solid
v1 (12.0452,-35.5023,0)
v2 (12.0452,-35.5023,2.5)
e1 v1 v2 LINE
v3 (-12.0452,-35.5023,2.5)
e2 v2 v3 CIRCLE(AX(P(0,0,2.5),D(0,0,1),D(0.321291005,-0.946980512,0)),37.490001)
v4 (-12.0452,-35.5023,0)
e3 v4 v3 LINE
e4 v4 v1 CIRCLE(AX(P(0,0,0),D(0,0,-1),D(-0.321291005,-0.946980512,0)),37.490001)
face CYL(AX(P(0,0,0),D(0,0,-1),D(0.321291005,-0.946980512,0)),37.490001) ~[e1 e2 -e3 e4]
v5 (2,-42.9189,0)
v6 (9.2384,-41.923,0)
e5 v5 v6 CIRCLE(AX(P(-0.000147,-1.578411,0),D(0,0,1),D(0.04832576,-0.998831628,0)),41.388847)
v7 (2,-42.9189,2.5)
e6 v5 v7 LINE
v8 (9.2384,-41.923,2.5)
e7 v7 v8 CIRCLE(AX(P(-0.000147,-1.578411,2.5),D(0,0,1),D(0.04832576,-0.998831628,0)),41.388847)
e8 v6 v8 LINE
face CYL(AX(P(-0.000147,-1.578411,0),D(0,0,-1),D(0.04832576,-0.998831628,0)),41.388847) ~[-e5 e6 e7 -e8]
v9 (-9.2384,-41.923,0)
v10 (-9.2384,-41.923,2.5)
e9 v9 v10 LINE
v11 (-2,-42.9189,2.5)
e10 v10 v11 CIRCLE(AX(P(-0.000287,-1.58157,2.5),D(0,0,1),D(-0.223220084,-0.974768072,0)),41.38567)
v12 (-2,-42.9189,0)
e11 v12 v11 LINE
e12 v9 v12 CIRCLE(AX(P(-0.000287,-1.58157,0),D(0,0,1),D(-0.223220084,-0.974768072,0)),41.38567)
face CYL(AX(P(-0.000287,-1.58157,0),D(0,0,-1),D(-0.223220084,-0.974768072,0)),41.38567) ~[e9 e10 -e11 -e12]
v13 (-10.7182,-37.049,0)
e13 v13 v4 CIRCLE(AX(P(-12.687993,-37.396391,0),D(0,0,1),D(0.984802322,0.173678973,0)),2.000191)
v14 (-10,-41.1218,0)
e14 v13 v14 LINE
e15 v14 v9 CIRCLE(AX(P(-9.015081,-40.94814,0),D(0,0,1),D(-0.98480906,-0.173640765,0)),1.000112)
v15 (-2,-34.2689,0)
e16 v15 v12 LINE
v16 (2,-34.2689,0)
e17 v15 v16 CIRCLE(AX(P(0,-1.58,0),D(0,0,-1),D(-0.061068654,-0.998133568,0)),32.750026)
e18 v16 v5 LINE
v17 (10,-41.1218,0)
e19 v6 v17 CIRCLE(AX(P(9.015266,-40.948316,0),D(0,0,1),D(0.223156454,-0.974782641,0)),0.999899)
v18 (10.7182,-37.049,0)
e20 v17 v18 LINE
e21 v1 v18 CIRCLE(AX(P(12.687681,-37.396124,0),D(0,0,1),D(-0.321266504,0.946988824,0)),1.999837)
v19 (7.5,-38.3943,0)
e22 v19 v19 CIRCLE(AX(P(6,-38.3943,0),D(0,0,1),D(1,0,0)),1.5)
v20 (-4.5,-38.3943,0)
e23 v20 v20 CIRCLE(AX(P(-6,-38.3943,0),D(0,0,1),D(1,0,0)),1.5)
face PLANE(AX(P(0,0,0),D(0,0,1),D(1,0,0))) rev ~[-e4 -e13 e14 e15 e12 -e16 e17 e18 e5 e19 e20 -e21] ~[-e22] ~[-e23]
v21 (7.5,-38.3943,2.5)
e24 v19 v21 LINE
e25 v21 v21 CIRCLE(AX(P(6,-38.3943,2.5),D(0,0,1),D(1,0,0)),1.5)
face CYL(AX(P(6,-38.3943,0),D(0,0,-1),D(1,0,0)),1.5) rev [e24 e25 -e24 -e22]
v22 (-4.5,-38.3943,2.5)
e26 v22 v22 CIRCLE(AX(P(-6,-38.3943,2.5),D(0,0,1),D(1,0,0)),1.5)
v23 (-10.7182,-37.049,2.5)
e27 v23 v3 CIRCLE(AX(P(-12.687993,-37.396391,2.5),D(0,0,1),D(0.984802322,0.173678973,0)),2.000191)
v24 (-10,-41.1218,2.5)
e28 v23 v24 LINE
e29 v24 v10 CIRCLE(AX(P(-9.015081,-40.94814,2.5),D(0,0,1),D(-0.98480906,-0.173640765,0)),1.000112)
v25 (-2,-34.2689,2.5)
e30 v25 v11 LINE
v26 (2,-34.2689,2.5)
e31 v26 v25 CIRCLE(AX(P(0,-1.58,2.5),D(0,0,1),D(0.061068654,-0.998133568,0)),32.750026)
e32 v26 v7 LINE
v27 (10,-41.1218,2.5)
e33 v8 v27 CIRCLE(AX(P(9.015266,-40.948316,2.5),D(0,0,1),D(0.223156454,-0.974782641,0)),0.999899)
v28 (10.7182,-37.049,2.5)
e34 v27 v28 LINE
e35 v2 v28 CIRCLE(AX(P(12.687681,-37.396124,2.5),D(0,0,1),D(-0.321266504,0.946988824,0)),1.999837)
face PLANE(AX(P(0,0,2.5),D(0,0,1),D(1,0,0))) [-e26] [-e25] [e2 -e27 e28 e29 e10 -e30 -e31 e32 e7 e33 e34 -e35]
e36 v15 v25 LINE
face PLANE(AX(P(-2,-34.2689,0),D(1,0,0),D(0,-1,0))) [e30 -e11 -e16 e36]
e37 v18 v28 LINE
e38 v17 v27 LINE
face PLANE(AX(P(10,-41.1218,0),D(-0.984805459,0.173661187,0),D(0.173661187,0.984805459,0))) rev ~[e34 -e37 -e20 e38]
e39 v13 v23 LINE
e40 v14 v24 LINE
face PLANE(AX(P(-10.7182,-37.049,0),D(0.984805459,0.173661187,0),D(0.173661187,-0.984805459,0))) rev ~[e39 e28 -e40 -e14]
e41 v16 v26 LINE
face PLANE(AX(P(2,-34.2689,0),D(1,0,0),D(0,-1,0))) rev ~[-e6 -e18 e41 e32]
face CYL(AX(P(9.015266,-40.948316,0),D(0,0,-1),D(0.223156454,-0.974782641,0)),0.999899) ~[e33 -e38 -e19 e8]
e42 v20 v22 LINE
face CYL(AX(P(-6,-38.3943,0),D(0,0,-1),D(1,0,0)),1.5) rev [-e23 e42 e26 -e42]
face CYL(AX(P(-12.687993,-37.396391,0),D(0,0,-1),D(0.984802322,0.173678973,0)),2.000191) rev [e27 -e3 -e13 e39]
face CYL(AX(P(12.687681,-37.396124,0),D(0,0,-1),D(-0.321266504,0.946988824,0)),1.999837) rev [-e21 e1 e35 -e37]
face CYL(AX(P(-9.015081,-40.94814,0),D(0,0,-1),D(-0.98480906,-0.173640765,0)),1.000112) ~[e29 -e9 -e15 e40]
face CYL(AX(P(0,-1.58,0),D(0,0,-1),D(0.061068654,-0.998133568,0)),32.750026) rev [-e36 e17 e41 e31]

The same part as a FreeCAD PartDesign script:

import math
import FreeCAD as App
import Part
import Sketcher

doc = App.newDocument("Part")
params = doc.addObject("Spreadsheet::Sheet", "Params")
for row, (alias, value) in enumerate([
    ("sketch1_diameter", "3 mm"),
    ("sketch1_diameter2", "3 mm"),
    ("sketch1_radius", "1 mm"),
    ("sketch1_radius2", "2 mm"),
    ("sketch1_radius3", "2 mm"),
    ("pad1_length", "2.5 mm"),
], start=1):
    params.set(f"A{row}", alias)
    params.set(f"B{row}", "=" + value)
    params.setAlias(f"B{row}", alias)

body = doc.addObject("PartDesign::Body", "Body")

# Sketch on XY plane
sketch1 = body.newObject("Sketcher::SketchObject", "Sketch")
sketch1.AttachmentSupport = (doc.getObject("XY_Plane"), [""])
sketch1.MapMode = "FlatFace"
sketch1.addGeometry(Part.LineSegment(App.Vector(2, -34.2689, 0), App.Vector(2, -42.9189, 0)), False)
sketch1.addGeometry(Part.ArcOfCircle(Part.Circle(App.Vector(-0.000147, -1.578411, 0), App.Vector(0, 0, 1), 41.388847), math.radians(-87.230059), math.radians(-77.102155)), False)
sketch1.addGeometry(Part.ArcOfCircle(Part.Circle(App.Vector(9.0152, -40.9482, 0), App.Vector(0, 0, 1), 1.000027), math.radians(-77.103295), math.radians(-9.997359)), False)
sketch1.addGeometry(Part.LineSegment(App.Vector(10, -41.1218, 0), App.Vector(10.7182, -37.049, 0)), False)
sketch1.addGeometry(Part.ArcOfCircle(Part.Circle(App.Vector(12.6878, -37.3963, 0), App.Vector(0, 0, 1), 2.000043), math.radians(108.741147), math.radians(169.99982)), False)
sketch1.addGeometry(Part.ArcOfCircle(Part.Circle(App.Vector(0, 0, 0), App.Vector(0, 0, 1), 37.490001), math.radians(-71.258983), math.radians(251.258983)), False)
sketch1.addGeometry(Part.ArcOfCircle(Part.Circle(App.Vector(-12.6878, -37.3963, 0), App.Vector(0, 0, 1), 1.999985), math.radians(10.00018), math.radians(71.258853)), False)
sketch1.addGeometry(Part.LineSegment(App.Vector(-10.7182, -37.049, 0), App.Vector(-10, -41.1218, 0)), False)
sketch1.addGeometry(Part.ArcOfCircle(Part.Circle(App.Vector(-9.0152, -40.9482, 0), App.Vector(0, 0, 1), 0.999984), math.radians(-170.002641), math.radians(-102.896705)), False)
sketch1.addGeometry(Part.ArcOfCircle(Part.Circle(App.Vector(-0.000287, -1.58157, 0), App.Vector(0, 0, 1), 41.38567), math.radians(-102.898235), math.radians(-92.769551)), False)
sketch1.addGeometry(Part.LineSegment(App.Vector(-2, -42.9189, 0), App.Vector(-2, -34.2689, 0)), False)
sketch1.addGeometry(Part.ArcOfCircle(Part.Circle(App.Vector(0, -1.58, 0), App.Vector(0, 0, 1), 32.750026), math.radians(-86.498845), math.radians(266.498845)), False)
sketch1.addGeometry(Part.Circle(App.Vector(6, -38.3943, 0), App.Vector(0, 0, 1), 1.5), False)
sketch1.addGeometry(Part.Circle(App.Vector(-6, -38.3943, 0), App.Vector(0, 0, 1), 1.5), False)
sketch1.addConstraint(Sketcher.Constraint("Coincident", 0, 2, 1, 1))
sketch1.addConstraint(Sketcher.Constraint("Coincident", 1, 2, 2, 1))
sketch1.addConstraint(Sketcher.Constraint("Coincident", 2, 2, 3, 1))
sketch1.addConstraint(Sketcher.Constraint("Coincident", 3, 2, 4, 2))
sketch1.addConstraint(Sketcher.Constraint("Coincident", 4, 1, 5, 1))
sketch1.addConstraint(Sketcher.Constraint("Coincident", 5, 2, 6, 2))
sketch1.addConstraint(Sketcher.Constraint("Coincident", 6, 1, 7, 1))
sketch1.addConstraint(Sketcher.Constraint("Coincident", 7, 2, 8, 1))
sketch1.addConstraint(Sketcher.Constraint("Coincident", 8, 2, 9, 1))
sketch1.addConstraint(Sketcher.Constraint("Coincident", 9, 2, 10, 1))
sketch1.addConstraint(Sketcher.Constraint("Coincident", 10, 2, 11, 2))
sketch1.addConstraint(Sketcher.Constraint("Coincident", 11, 1, 0, 1))
sketch1.addConstraint(Sketcher.Constraint("Vertical", 0))
sketch1.addConstraint(Sketcher.Constraint("Vertical", 10))
sketch1.addConstraint(Sketcher.Constraint("Coincident", 5, 3, -1, 1))
sketch1.addConstraint(Sketcher.Constraint("PointOnObject", 1, 3, -2))
sketch1.addConstraint(Sketcher.Constraint("PointOnObject", 11, 3, -2))
sketch1.addConstraint(Sketcher.Constraint("Diameter", 12, 3.0))
sketch1.addConstraint(Sketcher.Constraint("Diameter", 13, 3.0))
sketch1.addConstraint(Sketcher.Constraint("Radius", 2, 1.0))
sketch1.addConstraint(Sketcher.Constraint("Radius", 4, 2.0))
sketch1.addConstraint(Sketcher.Constraint("Radius", 6, 2.0))
sketch1.addConstraint(Sketcher.Constraint("Radius", 8, 1.0))
sketch1.addConstraint(Sketcher.Constraint("Radius", 11, 32.75))
sketch1.addConstraint(Sketcher.Constraint("DistanceX", -1, 1, 0, 2, 2.0))
sketch1.addConstraint(Sketcher.Constraint("DistanceX", -1, 1, 2, 2, 10.0))
sketch1.addConstraint(Sketcher.Constraint("DistanceX", 7, 2, -1, 1, 10.0))
sketch1.addConstraint(Sketcher.Constraint("DistanceX", 9, 2, -1, 1, 2.0))
sketch1.addConstraint(Sketcher.Constraint("DistanceX", 13, 3, 12, 3, 12.0))
sketch1.addConstraint(Sketcher.Constraint("DistanceY", 0, 2, 0, 1, 8.65))
sketch1.addConstraint(Sketcher.Constraint("DistanceY", 10, 1, 10, 2, 8.65))
sketch1.addConstraint(Sketcher.Constraint("DistanceY", 11, 3, -1, 1, 1.58))
sketch1.addConstraint(Sketcher.Constraint("Radius", 5, 37.49))
sketch1.addConstraint(Sketcher.Constraint("DistanceX", -1, 1, 12, 3, 6.0))
sketch1.addConstraint(Sketcher.Constraint("Radius", 1, 41.3888))
sketch1.addConstraint(Sketcher.Constraint("Radius", 9, 41.3857))
sketch1.addConstraint(Sketcher.Constraint("DistanceX", 2, 3, 4, 1, 3.03))
sketch1.addConstraint(Sketcher.Constraint("DistanceX", 5, 2, 8, 3, 3.03))
sketch1.addConstraint(Sketcher.Constraint("DistanceY", 0, 2, 6, 1, 5.87))
sketch1.addConstraint(Sketcher.Constraint("DistanceY", 3, 2, 11, 1, 2.78))
sketch1.addConstraint(Sketcher.Constraint("DistanceY", 1, 2, -1, 1, 41.923))
sketch1.addConstraint(Sketcher.Constraint("DistanceY", 8, 2, -1, 1, 41.923))
sketch1.addConstraint(Sketcher.Constraint("DistanceY", 2, 3, 4, 3, 3.552))
sketch1.addConstraint(Sketcher.Constraint("DistanceX", 1, 3, 4, 3, 12.688))
sketch1.addConstraint(Sketcher.Constraint("DistanceX", 6, 3, 2, 3, 21.703))
sketch1.addConstraint(Sketcher.Constraint("DistanceY", 8, 3, 6, 3, 3.552))
sketch1.addConstraint(Sketcher.Constraint("DistanceX", 8, 3, 4, 3, 21.703))
sketch1.addConstraint(Sketcher.Constraint("DistanceY", 2, 3, 12, 3, 2.554))
sketch1.addConstraint(Sketcher.Constraint("DistanceY", 8, 3, 13, 3, 2.554))
sketch1.setExpression("Constraints[17]", "Params.sketch1_diameter")
sketch1.setExpression("Constraints[18]", "Params.sketch1_diameter2")
sketch1.setExpression("Constraints[19]", "Params.sketch1_radius")
sketch1.setExpression("Constraints[20]", "Params.sketch1_radius2")
sketch1.setExpression("Constraints[21]", "Params.sketch1_radius3")
pad1 = body.newObject("PartDesign::Pad", "Pad")
pad1.Profile = sketch1
pad1.setExpression("Length", "Params.pad1_length")

doc.recompute()
